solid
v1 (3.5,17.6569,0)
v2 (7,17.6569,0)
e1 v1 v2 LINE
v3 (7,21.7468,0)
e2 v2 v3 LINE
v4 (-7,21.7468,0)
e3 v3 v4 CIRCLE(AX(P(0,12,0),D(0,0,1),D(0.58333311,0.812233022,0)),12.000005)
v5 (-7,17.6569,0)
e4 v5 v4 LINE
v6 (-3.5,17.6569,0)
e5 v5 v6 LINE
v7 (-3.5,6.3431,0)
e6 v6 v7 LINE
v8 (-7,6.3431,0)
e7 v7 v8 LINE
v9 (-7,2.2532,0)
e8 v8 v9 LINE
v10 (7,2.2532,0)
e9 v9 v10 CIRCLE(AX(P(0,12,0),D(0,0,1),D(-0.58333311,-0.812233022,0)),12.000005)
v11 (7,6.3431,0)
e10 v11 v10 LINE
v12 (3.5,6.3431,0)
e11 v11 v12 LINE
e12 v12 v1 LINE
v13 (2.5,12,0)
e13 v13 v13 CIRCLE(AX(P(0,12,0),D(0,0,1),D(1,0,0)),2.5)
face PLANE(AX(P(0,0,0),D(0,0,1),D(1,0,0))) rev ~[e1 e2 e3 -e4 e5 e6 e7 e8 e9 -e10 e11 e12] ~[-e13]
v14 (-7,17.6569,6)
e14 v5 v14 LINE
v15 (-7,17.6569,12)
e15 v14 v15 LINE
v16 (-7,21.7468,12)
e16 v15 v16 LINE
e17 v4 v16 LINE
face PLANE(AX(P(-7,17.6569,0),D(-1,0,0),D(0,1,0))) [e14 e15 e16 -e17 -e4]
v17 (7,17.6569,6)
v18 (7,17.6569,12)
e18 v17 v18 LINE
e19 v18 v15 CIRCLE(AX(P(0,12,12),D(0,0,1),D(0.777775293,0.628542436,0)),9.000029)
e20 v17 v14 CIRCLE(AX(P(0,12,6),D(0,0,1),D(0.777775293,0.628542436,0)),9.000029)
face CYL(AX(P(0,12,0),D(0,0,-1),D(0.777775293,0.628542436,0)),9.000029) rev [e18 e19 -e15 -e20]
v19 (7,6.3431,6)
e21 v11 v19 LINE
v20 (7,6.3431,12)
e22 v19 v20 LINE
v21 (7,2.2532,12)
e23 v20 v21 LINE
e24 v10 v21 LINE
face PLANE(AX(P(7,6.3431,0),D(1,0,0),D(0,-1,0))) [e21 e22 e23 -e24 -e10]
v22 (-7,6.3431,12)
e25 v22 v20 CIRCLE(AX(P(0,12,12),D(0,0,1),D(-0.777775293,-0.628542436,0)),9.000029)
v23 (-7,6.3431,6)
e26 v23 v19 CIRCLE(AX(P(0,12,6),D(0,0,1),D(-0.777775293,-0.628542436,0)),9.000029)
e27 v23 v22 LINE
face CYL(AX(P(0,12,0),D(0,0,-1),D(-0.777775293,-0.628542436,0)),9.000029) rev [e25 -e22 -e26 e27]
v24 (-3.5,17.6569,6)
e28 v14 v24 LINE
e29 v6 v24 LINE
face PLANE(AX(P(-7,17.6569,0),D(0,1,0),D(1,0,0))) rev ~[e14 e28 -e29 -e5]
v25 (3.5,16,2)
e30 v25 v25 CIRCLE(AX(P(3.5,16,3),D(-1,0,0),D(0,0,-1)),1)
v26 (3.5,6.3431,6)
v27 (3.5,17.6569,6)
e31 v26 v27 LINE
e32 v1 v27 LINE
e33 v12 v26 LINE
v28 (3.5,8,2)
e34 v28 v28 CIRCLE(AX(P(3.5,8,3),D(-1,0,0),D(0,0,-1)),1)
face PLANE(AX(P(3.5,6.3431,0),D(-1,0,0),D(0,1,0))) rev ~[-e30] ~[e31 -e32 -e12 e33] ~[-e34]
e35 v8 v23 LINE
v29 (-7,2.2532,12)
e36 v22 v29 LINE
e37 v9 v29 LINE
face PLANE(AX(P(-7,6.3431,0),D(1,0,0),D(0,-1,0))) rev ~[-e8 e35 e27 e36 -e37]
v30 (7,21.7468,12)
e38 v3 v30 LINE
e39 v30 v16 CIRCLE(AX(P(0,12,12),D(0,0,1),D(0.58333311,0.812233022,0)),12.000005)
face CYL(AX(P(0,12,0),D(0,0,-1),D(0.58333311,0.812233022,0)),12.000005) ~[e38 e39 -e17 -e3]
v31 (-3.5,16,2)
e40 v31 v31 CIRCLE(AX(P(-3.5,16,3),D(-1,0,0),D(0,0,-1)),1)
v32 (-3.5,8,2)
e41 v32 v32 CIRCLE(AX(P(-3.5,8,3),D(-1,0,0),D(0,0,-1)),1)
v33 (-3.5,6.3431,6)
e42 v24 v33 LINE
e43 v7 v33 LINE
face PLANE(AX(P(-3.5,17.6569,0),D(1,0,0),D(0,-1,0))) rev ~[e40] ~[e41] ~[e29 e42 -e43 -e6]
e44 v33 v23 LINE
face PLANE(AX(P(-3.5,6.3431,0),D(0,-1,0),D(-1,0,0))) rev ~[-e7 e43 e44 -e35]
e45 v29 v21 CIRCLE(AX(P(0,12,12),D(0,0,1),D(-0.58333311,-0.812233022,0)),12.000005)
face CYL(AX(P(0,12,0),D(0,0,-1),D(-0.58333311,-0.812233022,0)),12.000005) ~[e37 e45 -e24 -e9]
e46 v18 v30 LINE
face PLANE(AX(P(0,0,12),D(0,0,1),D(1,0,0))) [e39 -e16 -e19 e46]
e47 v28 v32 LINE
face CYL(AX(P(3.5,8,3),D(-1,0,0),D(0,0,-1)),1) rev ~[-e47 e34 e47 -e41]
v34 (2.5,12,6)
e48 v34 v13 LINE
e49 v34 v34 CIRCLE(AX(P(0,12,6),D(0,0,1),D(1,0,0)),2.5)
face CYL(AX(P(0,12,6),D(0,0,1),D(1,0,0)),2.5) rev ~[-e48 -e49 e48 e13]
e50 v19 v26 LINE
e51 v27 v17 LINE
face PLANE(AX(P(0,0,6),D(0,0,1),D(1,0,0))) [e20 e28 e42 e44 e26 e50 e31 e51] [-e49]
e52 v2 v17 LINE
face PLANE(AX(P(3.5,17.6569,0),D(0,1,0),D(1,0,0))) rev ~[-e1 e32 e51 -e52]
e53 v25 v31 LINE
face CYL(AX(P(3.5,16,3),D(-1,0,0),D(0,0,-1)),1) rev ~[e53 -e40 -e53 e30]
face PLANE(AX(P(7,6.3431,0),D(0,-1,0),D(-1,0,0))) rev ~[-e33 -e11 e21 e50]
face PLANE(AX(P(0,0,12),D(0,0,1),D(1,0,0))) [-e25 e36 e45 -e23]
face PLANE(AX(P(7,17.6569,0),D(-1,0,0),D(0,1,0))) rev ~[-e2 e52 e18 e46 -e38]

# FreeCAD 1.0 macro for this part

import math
import FreeCAD as App
import Part
import Sketcher
from FreeCAD import Vector
Q = App.Units.Quantity

doc = App.newDocument("Part")
params = doc.addObject("Spreadsheet::Sheet", "Params")
for row, (alias, value) in enumerate([
    ("sketch1_radius", "9 mm"),
    ("sketch1_width", "3.5 mm"),
    ("pad1_length", "6 mm"),
    ("sketch2_radius", "9 mm"),
    ("sketch2_radius2", "12 mm"),
    ("pad2_length", "12 mm"),
    ("sketch3_diameter", "5 mm"),
    ("pocket1_length", "6 mm"),
    ("sketch4_diameter", "2 mm"),
    ("hole_diameter", "2 mm"),
    ("hole_depth", "7 mm"),
], start=1):
    params.set(f"A{row}", alias)
    params.set(f"B{row}", "=" + value)
    params.setAlias(f"B{row}", alias)

body = doc.addObject("PartDesign::Body", "Body")

# Sketch on XY plane
sketch1 = doc.addObject("Sketcher::SketchObject", "Sketch")
body.addObject(sketch1)
sketch1.AttachmentSupport = (doc.XY_Plane, [""])
sketch1.MapMode = "FlatFace"
sketch1.addGeometry([
    Part.LineSegment(Vector(3.5, 17.6569, 0), Vector(7, 17.6569, 0)),  # 0
    Part.ArcOfCircle(Part.Circle(Vector(0, 12, 0), Vector(0, 0, 1), 9.000029), math.radians(38.942668), math.radians(141.057332)),  # 1
    Part.LineSegment(Vector(-7, 17.6569, 0), Vector(-3.5, 17.6569, 0)),  # 2
    Part.LineSegment(Vector(-3.5, 17.6569, 0), Vector(-3.5, 6.3431, 0)),  # 3
    Part.LineSegment(Vector(-3.5, 6.3431, 0), Vector(-7, 6.3431, 0)),  # 4
    Part.ArcOfCircle(Part.Circle(Vector(0, 12, 0), Vector(0, 0, 1), 9.000029), math.radians(-141.057332), math.radians(-38.942668)),  # 5
    Part.LineSegment(Vector(7, 6.3431, 0), Vector(3.5, 6.3431, 0)),  # 6
    Part.LineSegment(Vector(3.5, 6.3431, 0), Vector(3.5, 17.6569, 0)),  # 7
], False)
sketch1.addConstraint([
    Sketcher.Constraint("Coincident", 0, 2, 1, 1),
    Sketcher.Constraint("Coincident", 1, 2, 2, 1),
    Sketcher.Constraint("Coincident", 2, 2, 3, 1),
    Sketcher.Constraint("Coincident", 3, 2, 4, 1),
    Sketcher.Constraint("Coincident", 4, 2, 5, 1),
    Sketcher.Constraint("Coincident", 5, 2, 6, 1),
    Sketcher.Constraint("Coincident", 6, 2, 7, 1),
    Sketcher.Constraint("Coincident", 7, 2, 0, 1),
    Sketcher.Constraint("Horizontal", 0),
    Sketcher.Constraint("Horizontal", 2),
    Sketcher.Constraint("Vertical", 3),
    Sketcher.Constraint("Horizontal", 4),
    Sketcher.Constraint("Horizontal", 6),
    Sketcher.Constraint("Vertical", 7),
    Sketcher.Constraint("Coincident", 5, 3, 1, 3),
    Sketcher.Constraint("Equal", 1, 5),
    Sketcher.Constraint("Symmetric", 0, 2, 1, 2, -2),
    Sketcher.Constraint("Symmetric", 3, 2, 6, 2, -2),
    Sketcher.Constraint("Vertical", 1, 2, 4, 2),
    Sketcher.Constraint("Radius", 1, Q("9 mm")),
    Sketcher.Constraint("DistanceX", 0, 1, 0, 2, Q("3.5 mm")),
    Sketcher.Constraint("DistanceY", -1, 1, 1, 3, Q("12 mm")),
    Sketcher.Constraint("DistanceX", -1, 1, 0, 2, Q("7 mm")),
])
sketch1.setExpression("Constraints[19]", "Params.sketch1_radius")
sketch1.setExpression("Constraints[20]", "Params.sketch1_width")
pad1 = doc.addObject("PartDesign::Pad", "Pad")
body.addObject(pad1)
pad1.Profile = sketch1
pad1.setExpression("Length", "Params.pad1_length")

# Sketch on XY plane
sketch2 = doc.addObject("Sketcher::SketchObject", "Sketch001")
body.addObject(sketch2)
sketch2.AttachmentSupport = (doc.XY_Plane, [""])
sketch2.MapMode = "FlatFace"
sketch2.addGeometry([
    Part.ArcOfCircle(Part.Circle(Vector(0, 12, 0), Vector(0, 0, 1), 9.000029), math.radians(38.942668), math.radians(141.057332)),  # 0
    Part.LineSegment(Vector(7, 17.6569, 0), Vector(7, 21.7468, 0)),  # 1
    Part.ArcOfCircle(Part.Circle(Vector(0, 12, 0), Vector(0, 0, 1), 12.000005), math.radians(54.314681), math.radians(125.685319)),  # 2
    Part.LineSegment(Vector(-7, 21.7468, 0), Vector(-7, 17.6569, 0)),  # 3
    Part.LineSegment(Vector(7, 2.2532, 0), Vector(7, 6.3431, 0)),  # 4
    Part.ArcOfCircle(Part.Circle(Vector(0, 12, 0), Vector(0, 0, 1), 9.000029), math.radians(-141.057332), math.radians(-38.942668)),  # 5
    Part.LineSegment(Vector(-7, 6.3431, 0), Vector(-7, 2.2532, 0)),  # 6
    Part.ArcOfCircle(Part.Circle(Vector(0, 12, 0), Vector(0, 0, 1), 12.000005), math.radians(-125.685319), math.radians(-54.314681)),  # 7
], False)
sketch2.addConstraint([
    Sketcher.Constraint("Coincident", 0, 1, 1, 1),
    Sketcher.Constraint("Coincident", 1, 2, 2, 1),
    Sketcher.Constraint("Coincident", 2, 2, 3, 1),
    Sketcher.Constraint("Coincident", 3, 2, 0, 2),
    Sketcher.Constraint("Coincident", 4, 2, 5, 2),
    Sketcher.Constraint("Coincident", 5, 1, 6, 1),
    Sketcher.Constraint("Coincident", 6, 2, 7, 1),
    Sketcher.Constraint("Coincident", 7, 2, 4, 1),
    Sketcher.Constraint("Vertical", 1),
    Sketcher.Constraint("Vertical", 3),
    Sketcher.Constraint("Vertical", 4),
    Sketcher.Constraint("Vertical", 6),
    Sketcher.Constraint("Coincident", 2, 3, 0, 3),
    Sketcher.Constraint("Coincident", 5, 3, 0, 3),
    Sketcher.Constraint("Coincident", 7, 3, 0, 3),
    Sketcher.Constraint("Equal", 0, 5),
    Sketcher.Constraint("Equal", 2, 7),
    Sketcher.Constraint("Symmetric", 1, 2, 2, 2, -2),
    Sketcher.Constraint("Horizontal", 4, 2, 5, 1),
    Sketcher.Constraint("Vertical", 1, 2, 4, 2),
    Sketcher.Constraint("Radius", 0, Q("9 mm")),
    Sketcher.Constraint("Radius", 2, Q("12 mm")),
    Sketcher.Constraint("DistanceY", -1, 1, 0, 3, Q("12 mm")),
    Sketcher.Constraint("DistanceX", -1, 1, 0, 1, Q("7 mm")),
])
sketch2.setExpression("Constraints[20]", "Params.sketch2_radius")
sketch2.setExpression("Constraints[21]", "Params.sketch2_radius2")
pad2 = doc.addObject("PartDesign::Pad", "Pad001")
body.addObject(pad2)
pad2.Profile = sketch2
pad2.setExpression("Length", "Params.pad2_length")

# Sketch on XY plane
sketch3 = doc.addObject("Sketcher::SketchObject", "Sketch002")
body.addObject(sketch3)
sketch3.AttachmentSupport = (doc.XY_Plane, [""])
sketch3.MapMode = "FlatFace"
sketch3.AttachmentOffset = App.Placement(Vector(0, 0, 6), App.Rotation())
sketch3.addGeometry(Part.Circle(Vector(0, 12, 0), Vector(0, 0, 1), 2.5), False)
sketch3.addConstraint([
    Sketcher.Constraint("PointOnObject", 0, 3, -2),
    Sketcher.Constraint("Diameter", 0, Q("5 mm")),
    Sketcher.Constraint("DistanceY", -1, 1, 0, 3, Q("12 mm")),
])
sketch3.setExpression("Constraints[1]", "Params.sketch3_diameter")
pocket1 = doc.addObject("PartDesign::Pocket", "Pocket")
body.addObject(pocket1)
pocket1.Profile = sketch3
pocket1.setExpression("Length", "Params.pocket1_length")

# Sketch on YZ plane
sketch4 = doc.addObject("Sketcher::SketchObject", "Sketch003")
body.addObject(sketch4)
sketch4.AttachmentSupport = (doc.YZ_Plane, [""])
sketch4.MapMode = "FlatFace"
sketch4.AttachmentOffset = App.Placement(Vector(0, 0, 3.5), App.Rotation())
sketch4.addGeometry([
    Part.Circle(Vector(8, 3, 0), Vector(0, 0, 1), 1),
    Part.Circle(Vector(16, 3, 0), Vector(0, 0, 1), 1),
], False)
sketch4.addConstraint([
    Sketcher.Constraint("Equal", 0, 1),
    Sketcher.Constraint("Horizontal", 0, 3, 1, 3),
    Sketcher.Constraint("Diameter", 0, Q("2 mm")),
    Sketcher.Constraint("DistanceX", -1, 1, 0, 3, Q("8 mm")),
    Sketcher.Constraint("DistanceY", -1, 1, 0, 3, Q("3 mm")),
    Sketcher.Constraint("DistanceX", -1, 1, 1, 3, Q("16 mm")),
])
sketch4.setExpression("Constraints[2]", "Params.sketch4_diameter")
doc.recompute()
hole = doc.addObject("PartDesign::Hole", "Hole")
body.addObject(hole)
hole.Profile = sketch4
hole.ThreadType = "None"
hole.setExpression("Diameter", "Params.hole_diameter")
hole.DepthType = "Dimension"
hole.setExpression("Depth", "Params.hole_depth")
hole.DrillPoint = "Flat"

doc.recompute()
